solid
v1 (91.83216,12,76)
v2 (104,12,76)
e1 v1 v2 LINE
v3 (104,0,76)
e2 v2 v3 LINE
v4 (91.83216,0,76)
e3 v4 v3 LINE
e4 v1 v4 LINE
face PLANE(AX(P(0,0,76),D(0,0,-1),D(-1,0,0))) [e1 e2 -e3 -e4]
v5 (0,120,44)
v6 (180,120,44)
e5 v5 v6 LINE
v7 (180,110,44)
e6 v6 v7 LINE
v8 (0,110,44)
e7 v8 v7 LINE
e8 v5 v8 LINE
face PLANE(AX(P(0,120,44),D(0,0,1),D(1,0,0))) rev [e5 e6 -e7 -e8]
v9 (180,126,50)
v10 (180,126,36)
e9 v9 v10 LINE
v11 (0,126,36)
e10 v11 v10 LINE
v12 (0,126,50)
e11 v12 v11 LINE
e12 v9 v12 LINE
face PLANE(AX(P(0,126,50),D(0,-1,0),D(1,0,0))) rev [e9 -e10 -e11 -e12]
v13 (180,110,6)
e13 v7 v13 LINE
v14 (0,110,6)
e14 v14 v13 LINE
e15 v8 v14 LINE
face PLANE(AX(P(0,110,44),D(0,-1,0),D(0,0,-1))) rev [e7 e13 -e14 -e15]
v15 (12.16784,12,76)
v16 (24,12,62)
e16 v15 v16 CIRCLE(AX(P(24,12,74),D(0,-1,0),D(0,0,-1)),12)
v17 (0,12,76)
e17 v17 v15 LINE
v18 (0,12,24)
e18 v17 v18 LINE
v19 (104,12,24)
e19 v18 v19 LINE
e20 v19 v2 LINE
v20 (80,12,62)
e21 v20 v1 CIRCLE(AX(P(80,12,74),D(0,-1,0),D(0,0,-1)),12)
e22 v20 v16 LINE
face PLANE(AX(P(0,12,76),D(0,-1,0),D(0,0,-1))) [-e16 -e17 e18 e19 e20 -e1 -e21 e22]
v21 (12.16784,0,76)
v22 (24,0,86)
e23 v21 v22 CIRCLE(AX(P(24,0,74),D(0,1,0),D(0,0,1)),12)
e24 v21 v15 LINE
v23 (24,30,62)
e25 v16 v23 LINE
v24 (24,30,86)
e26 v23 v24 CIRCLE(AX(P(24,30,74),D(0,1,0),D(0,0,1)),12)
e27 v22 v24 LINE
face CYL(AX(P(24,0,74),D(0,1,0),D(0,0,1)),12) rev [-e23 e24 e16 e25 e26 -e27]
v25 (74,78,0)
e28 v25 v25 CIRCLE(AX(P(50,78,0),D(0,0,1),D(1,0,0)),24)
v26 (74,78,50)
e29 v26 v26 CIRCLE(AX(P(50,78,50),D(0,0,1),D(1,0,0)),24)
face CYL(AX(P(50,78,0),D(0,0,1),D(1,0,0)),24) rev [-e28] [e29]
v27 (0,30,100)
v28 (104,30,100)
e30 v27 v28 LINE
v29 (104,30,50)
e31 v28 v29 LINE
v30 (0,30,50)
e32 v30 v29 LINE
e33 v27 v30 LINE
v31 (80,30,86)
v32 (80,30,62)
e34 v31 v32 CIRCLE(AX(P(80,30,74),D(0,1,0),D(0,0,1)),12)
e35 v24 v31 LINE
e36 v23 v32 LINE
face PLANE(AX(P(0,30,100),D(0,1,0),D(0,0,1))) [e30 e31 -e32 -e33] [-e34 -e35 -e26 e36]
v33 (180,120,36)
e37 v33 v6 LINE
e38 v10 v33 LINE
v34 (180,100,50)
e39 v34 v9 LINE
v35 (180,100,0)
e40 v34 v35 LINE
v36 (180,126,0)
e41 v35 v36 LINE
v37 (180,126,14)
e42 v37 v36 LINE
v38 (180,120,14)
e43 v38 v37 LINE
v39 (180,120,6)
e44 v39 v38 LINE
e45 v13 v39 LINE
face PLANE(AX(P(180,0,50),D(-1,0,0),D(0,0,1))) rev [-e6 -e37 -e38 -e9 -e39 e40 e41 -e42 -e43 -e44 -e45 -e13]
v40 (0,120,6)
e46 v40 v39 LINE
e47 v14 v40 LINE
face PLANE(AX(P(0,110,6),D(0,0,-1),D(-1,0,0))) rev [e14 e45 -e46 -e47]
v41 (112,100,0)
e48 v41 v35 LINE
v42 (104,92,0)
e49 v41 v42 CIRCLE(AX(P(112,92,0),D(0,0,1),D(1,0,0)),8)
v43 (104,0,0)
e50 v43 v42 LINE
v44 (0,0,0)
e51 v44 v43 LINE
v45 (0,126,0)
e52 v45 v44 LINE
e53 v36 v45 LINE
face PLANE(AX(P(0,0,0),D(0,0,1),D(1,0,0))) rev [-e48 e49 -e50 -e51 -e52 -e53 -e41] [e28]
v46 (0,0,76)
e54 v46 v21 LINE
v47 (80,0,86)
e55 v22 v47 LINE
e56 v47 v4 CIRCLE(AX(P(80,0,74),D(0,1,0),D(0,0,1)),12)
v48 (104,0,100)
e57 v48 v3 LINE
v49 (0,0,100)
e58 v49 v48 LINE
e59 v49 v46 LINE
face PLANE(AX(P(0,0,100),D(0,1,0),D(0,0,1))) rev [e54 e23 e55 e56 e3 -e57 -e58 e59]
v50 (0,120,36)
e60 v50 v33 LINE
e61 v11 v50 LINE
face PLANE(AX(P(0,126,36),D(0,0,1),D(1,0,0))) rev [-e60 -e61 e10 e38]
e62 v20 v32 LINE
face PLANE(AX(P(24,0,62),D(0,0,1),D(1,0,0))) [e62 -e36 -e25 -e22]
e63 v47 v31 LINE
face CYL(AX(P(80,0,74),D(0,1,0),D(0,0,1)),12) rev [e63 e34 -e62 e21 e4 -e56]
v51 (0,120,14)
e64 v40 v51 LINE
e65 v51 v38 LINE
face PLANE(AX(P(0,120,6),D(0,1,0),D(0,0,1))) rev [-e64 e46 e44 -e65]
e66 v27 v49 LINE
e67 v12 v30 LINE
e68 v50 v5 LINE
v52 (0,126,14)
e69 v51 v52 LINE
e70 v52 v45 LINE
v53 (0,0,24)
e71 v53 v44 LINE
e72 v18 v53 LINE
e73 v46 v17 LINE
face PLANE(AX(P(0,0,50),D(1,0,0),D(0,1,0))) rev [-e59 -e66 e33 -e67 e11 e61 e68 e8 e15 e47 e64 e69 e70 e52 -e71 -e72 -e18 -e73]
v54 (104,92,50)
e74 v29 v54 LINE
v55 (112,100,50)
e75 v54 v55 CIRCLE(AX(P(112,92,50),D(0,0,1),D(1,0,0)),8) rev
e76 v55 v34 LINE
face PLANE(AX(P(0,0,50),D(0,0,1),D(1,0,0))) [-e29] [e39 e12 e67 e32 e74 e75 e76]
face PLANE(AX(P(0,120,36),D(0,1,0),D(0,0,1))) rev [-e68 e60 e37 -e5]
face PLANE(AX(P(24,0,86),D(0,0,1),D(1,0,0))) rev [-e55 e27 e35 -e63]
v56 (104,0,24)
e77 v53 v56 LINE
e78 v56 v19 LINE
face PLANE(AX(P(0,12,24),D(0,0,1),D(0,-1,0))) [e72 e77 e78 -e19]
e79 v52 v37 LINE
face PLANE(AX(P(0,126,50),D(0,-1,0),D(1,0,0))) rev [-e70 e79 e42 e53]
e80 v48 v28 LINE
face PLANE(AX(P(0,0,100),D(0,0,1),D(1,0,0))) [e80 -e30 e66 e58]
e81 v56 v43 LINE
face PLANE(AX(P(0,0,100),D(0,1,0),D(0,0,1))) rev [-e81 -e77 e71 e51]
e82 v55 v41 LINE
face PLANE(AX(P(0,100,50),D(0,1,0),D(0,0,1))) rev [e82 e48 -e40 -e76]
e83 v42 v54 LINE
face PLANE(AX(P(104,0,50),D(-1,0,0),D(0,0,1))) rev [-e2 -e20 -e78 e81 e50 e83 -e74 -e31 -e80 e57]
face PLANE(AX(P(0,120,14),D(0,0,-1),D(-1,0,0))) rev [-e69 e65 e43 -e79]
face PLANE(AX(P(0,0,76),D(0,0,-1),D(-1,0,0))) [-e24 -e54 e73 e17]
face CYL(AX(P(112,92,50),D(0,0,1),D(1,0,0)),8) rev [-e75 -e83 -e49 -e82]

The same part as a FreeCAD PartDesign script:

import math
import FreeCAD as App
import Part
import Sketcher


def edges_at(feature, points):
    """Names of the edges that pass closest to the given points."""
    edges = feature.Shape.Edges
    near = lambda p: min(range(len(edges)), key=lambda i: edges[i].distToShape(Part.Vertex(*p))[0])
    return sorted({f"Edge{near(p) + 1}" for p in points})


def add_polygon(sketch, points):
    """Adds a closed chain of lines whose ends are joined by coincident constraints."""
    first, n = sketch.GeometryCount, len(points)
    for a, b in zip(points, points[1:] + points[:1]):
        sketch.addGeometry(Part.LineSegment(App.Vector(*a, 0), App.Vector(*b, 0)), False)
    for i in range(n):
        sketch.addConstraint(Sketcher.Constraint("Coincident", first + i, 2, first + (i + 1) % n, 1))

doc = App.newDocument("Part")
body = doc.addObject("PartDesign::Body", "Body")

# Sketch on XY plane
sketch1 = body.newObject("Sketcher::SketchObject", "Sketch")
sketch1.AttachmentSupport = (doc.getObject("XY_Plane"), [""])
sketch1.MapMode = "FlatFace"
add_polygon(sketch1, [(0, 126), (0, 30), (104, 30), (104, 100), (180, 100), (180, 126)])  # lines 0-5
sketch1.addConstraint(Sketcher.Constraint("Vertical", 0))
sketch1.addConstraint(Sketcher.Constraint("Horizontal", 1))
sketch1.addConstraint(Sketcher.Constraint("Vertical", 2))
sketch1.addConstraint(Sketcher.Constraint("Horizontal", 3))
sketch1.addConstraint(Sketcher.Constraint("Vertical", 4))
sketch1.addConstraint(Sketcher.Constraint("Horizontal", 5))
sketch1.addConstraint(Sketcher.Constraint("PointOnObject", 0, 2, -2))
sketch1.addConstraint(Sketcher.Constraint("DistanceX", 1, 1, 1, 2, 104.0))
sketch1.addConstraint(Sketcher.Constraint("DistanceX", 3, 1, 3, 2, 76.0))
sketch1.addConstraint(Sketcher.Constraint("DistanceY", 0, 2, 0, 1, 96.0))
sketch1.addConstraint(Sketcher.Constraint("DistanceY", 2, 1, 2, 2, 70.0))
sketch1.addConstraint(Sketcher.Constraint("DistanceY", -1, 1, 0, 2, 30.0))
pad1 = body.newObject("PartDesign::Pad", "Pad")
pad1.Profile = sketch1
pad1.Length = 50

# Sketch on XY plane
sketch2 = body.newObject("Sketcher::SketchObject", "Sketch001")
sketch2.AttachmentSupport = (doc.getObject("XY_Plane"), [""])
sketch2.MapMode = "FlatFace"
add_polygon(sketch2, [(0, 30), (0, 0), (104, 0), (104, 30)])  # lines 0-3
sketch2.addConstraint(Sketcher.Constraint("Vertical", 0))
sketch2.addConstraint(Sketcher.Constraint("Horizontal", 1))
sketch2.addConstraint(Sketcher.Constraint("Vertical", 2))
sketch2.addConstraint(Sketcher.Constraint("Horizontal", 3))
sketch2.addConstraint(Sketcher.Constraint("Coincident", 0, 2, -1, 1))
sketch2.addConstraint(Sketcher.Constraint("DistanceX", 1, 1, 1, 2, 104.0))
sketch2.addConstraint(Sketcher.Constraint("DistanceY", 0, 2, 0, 1, 30.0))
pad2 = body.newObject("PartDesign::Pad", "Pad001")
pad2.Profile = sketch2
pad2.Length = 100

# Sketch on YZ plane
sketch3 = body.newObject("Sketcher::SketchObject", "Sketch002")
sketch3.AttachmentSupport = (doc.getObject("YZ_Plane"), [""])
sketch3.MapMode = "FlatFace"
sketch3.AttachmentOffset = App.Placement(App.Vector(0, 0, 180), App.Rotation())
add_polygon(sketch3, [(12, 76), (0, 76), (0, 24), (12, 24)])  # lines 0-3
sketch3.addConstraint(Sketcher.Constraint("Horizontal", 0))
sketch3.addConstraint(Sketcher.Constraint("Vertical", 1))
sketch3.addConstraint(Sketcher.Constraint("Horizontal", 2))
sketch3.addConstraint(Sketcher.Constraint("Vertical", 3))
sketch3.addConstraint(Sketcher.Constraint("PointOnObject", 0, 2, -2))
sketch3.addConstraint(Sketcher.Constraint("DistanceX", 0, 2, 0, 1, 12.0))
sketch3.addConstraint(Sketcher.Constraint("DistanceY", 1, 2, 1, 1, 52.0))
sketch3.addConstraint(Sketcher.Constraint("DistanceY", -1, 1, 0, 2, 76.0))
pocket1 = body.newObject("PartDesign::Pocket", "Pocket")
pocket1.Profile = sketch3
pocket1.Type = "ThroughAll"

# Sketch on YZ plane
sketch4 = body.newObject("Sketcher::SketchObject", "Sketch003")
sketch4.AttachmentSupport = (doc.getObject("YZ_Plane"), [""])
sketch4.MapMode = "FlatFace"
sketch4.AttachmentOffset = App.Placement(App.Vector(0, 0, 180), App.Rotation())
add_polygon(sketch4, [(126, 36), (120, 36), (120, 44), (110, 44), (110, 6), (120, 6), (120, 14), (126, 14)])  # lines 0-7
sketch4.addConstraint(Sketcher.Constraint("Horizontal", 0))
sketch4.addConstraint(Sketcher.Constraint("Vertical", 1))
sketch4.addConstraint(Sketcher.Constraint("Horizontal", 2))
sketch4.addConstraint(Sketcher.Constraint("Vertical", 3))
sketch4.addConstraint(Sketcher.Constraint("Horizontal", 4))
sketch4.addConstraint(Sketcher.Constraint("Vertical", 5))
sketch4.addConstraint(Sketcher.Constraint("Horizontal", 6))
sketch4.addConstraint(Sketcher.Constraint("Vertical", 7))
sketch4.addConstraint(Sketcher.Constraint("Vertical", 1, 2, 4, 2))
sketch4.addConstraint(Sketcher.Constraint("Equal", 1, 5))
sketch4.addConstraint(Sketcher.Constraint("DistanceX", 0, 2, 0, 1, 6.0))
sketch4.addConstraint(Sketcher.Constraint("DistanceX", 2, 2, 2, 1, 10.0))
sketch4.addConstraint(Sketcher.Constraint("DistanceY", 1, 1, 1, 2, 8.0))
sketch4.addConstraint(Sketcher.Constraint("DistanceY", 3, 2, 3, 1, 38.0))
sketch4.addConstraint(Sketcher.Constraint("DistanceX", -1, 1, 0, 2, 120.0))
sketch4.addConstraint(Sketcher.Constraint("DistanceY", -1, 1, 0, 2, 36.0))
pocket2 = body.newObject("PartDesign::Pocket", "Pocket001")
pocket2.Profile = sketch4
pocket2.Type = "ThroughAll"

# Sketch on XZ plane
sketch5 = body.newObject("Sketcher::SketchObject", "Sketch004")
sketch5.AttachmentSupport = (doc.getObject("XZ_Plane"), [""])
sketch5.MapMode = "FlatFace"
sketch5.AttachmentOffset = App.Placement(App.Vector(0, 0, -30), App.Rotation())
sketch5.addGeometry(Part.LineSegment(App.Vector(80, 62, 0), App.Vector(24, 62, 0)), False)
sketch5.addGeometry(Part.ArcOfCircle(Part.Circle(App.Vector(24, 74, 0), App.Vector(0, 0, 1), 12), math.radians(90), math.radians(270)), False)
sketch5.addGeometry(Part.LineSegment(App.Vector(24, 86, 0), App.Vector(80, 86, 0)), False)
sketch5.addGeometry(Part.ArcOfCircle(Part.Circle(App.Vector(80, 74, 0), App.Vector(0, 0, 1), 12), math.radians(-90), math.radians(90)), False)
sketch5.addConstraint(Sketcher.Constraint("Tangent", 0, 2, 1, 2))
sketch5.addConstraint(Sketcher.Constraint("Tangent", 1, 1, 2, 1))
sketch5.addConstraint(Sketcher.Constraint("Tangent", 2, 2, 3, 2))
sketch5.addConstraint(Sketcher.Constraint("Tangent", 3, 1, 0, 1))
sketch5.addConstraint(Sketcher.Constraint("Horizontal", 0))
sketch5.addConstraint(Sketcher.Constraint("Horizontal", 2))
sketch5.addConstraint(Sketcher.Constraint("Radius", 1, 12.0))
sketch5.addConstraint(Sketcher.Constraint("DistanceX", 0, 2, 0, 1, 56.0))
sketch5.addConstraint(Sketcher.Constraint("DistanceX", -1, 1, 1, 3, 24.0))
sketch5.addConstraint(Sketcher.Constraint("DistanceY", -1, 1, 1, 3, 74.0))
pocket3 = body.newObject("PartDesign::Pocket", "Pocket002")
pocket3.Profile = sketch5
pocket3.Type = "ThroughAll"
pocket3.Reversed = True

# Sketch on XY plane
sketch6 = body.newObject("Sketcher::SketchObject", "Sketch005")
sketch6.AttachmentSupport = (doc.getObject("XY_Plane"), [""])
sketch6.MapMode = "FlatFace"
sketch6.AttachmentOffset = App.Placement(App.Vector(0, 0, 50), App.Rotation())
sketch6.addGeometry(Part.Circle(App.Vector(50, 78, 0), App.Vector(0, 0, 1), 24), False)
sketch6.addConstraint(Sketcher.Constraint("Diameter", 0, 48.0))
sketch6.addConstraint(Sketcher.Constraint("DistanceX", -1, 1, 0, 3, 50.0))
sketch6.addConstraint(Sketcher.Constraint("DistanceY", -1, 1, 0, 3, 78.0))
pocket4 = body.newObject("PartDesign::Pocket", "Pocket003")
pocket4.Profile = sketch6
pocket4.Type = "ThroughAll"
doc.recompute()

fillet = body.newObject("PartDesign::Fillet", "Fillet")
fillet.Base = (pocket4, edges_at(pocket4, [(104, 100, 25)]))
fillet.Radius = 8

doc.recompute()
